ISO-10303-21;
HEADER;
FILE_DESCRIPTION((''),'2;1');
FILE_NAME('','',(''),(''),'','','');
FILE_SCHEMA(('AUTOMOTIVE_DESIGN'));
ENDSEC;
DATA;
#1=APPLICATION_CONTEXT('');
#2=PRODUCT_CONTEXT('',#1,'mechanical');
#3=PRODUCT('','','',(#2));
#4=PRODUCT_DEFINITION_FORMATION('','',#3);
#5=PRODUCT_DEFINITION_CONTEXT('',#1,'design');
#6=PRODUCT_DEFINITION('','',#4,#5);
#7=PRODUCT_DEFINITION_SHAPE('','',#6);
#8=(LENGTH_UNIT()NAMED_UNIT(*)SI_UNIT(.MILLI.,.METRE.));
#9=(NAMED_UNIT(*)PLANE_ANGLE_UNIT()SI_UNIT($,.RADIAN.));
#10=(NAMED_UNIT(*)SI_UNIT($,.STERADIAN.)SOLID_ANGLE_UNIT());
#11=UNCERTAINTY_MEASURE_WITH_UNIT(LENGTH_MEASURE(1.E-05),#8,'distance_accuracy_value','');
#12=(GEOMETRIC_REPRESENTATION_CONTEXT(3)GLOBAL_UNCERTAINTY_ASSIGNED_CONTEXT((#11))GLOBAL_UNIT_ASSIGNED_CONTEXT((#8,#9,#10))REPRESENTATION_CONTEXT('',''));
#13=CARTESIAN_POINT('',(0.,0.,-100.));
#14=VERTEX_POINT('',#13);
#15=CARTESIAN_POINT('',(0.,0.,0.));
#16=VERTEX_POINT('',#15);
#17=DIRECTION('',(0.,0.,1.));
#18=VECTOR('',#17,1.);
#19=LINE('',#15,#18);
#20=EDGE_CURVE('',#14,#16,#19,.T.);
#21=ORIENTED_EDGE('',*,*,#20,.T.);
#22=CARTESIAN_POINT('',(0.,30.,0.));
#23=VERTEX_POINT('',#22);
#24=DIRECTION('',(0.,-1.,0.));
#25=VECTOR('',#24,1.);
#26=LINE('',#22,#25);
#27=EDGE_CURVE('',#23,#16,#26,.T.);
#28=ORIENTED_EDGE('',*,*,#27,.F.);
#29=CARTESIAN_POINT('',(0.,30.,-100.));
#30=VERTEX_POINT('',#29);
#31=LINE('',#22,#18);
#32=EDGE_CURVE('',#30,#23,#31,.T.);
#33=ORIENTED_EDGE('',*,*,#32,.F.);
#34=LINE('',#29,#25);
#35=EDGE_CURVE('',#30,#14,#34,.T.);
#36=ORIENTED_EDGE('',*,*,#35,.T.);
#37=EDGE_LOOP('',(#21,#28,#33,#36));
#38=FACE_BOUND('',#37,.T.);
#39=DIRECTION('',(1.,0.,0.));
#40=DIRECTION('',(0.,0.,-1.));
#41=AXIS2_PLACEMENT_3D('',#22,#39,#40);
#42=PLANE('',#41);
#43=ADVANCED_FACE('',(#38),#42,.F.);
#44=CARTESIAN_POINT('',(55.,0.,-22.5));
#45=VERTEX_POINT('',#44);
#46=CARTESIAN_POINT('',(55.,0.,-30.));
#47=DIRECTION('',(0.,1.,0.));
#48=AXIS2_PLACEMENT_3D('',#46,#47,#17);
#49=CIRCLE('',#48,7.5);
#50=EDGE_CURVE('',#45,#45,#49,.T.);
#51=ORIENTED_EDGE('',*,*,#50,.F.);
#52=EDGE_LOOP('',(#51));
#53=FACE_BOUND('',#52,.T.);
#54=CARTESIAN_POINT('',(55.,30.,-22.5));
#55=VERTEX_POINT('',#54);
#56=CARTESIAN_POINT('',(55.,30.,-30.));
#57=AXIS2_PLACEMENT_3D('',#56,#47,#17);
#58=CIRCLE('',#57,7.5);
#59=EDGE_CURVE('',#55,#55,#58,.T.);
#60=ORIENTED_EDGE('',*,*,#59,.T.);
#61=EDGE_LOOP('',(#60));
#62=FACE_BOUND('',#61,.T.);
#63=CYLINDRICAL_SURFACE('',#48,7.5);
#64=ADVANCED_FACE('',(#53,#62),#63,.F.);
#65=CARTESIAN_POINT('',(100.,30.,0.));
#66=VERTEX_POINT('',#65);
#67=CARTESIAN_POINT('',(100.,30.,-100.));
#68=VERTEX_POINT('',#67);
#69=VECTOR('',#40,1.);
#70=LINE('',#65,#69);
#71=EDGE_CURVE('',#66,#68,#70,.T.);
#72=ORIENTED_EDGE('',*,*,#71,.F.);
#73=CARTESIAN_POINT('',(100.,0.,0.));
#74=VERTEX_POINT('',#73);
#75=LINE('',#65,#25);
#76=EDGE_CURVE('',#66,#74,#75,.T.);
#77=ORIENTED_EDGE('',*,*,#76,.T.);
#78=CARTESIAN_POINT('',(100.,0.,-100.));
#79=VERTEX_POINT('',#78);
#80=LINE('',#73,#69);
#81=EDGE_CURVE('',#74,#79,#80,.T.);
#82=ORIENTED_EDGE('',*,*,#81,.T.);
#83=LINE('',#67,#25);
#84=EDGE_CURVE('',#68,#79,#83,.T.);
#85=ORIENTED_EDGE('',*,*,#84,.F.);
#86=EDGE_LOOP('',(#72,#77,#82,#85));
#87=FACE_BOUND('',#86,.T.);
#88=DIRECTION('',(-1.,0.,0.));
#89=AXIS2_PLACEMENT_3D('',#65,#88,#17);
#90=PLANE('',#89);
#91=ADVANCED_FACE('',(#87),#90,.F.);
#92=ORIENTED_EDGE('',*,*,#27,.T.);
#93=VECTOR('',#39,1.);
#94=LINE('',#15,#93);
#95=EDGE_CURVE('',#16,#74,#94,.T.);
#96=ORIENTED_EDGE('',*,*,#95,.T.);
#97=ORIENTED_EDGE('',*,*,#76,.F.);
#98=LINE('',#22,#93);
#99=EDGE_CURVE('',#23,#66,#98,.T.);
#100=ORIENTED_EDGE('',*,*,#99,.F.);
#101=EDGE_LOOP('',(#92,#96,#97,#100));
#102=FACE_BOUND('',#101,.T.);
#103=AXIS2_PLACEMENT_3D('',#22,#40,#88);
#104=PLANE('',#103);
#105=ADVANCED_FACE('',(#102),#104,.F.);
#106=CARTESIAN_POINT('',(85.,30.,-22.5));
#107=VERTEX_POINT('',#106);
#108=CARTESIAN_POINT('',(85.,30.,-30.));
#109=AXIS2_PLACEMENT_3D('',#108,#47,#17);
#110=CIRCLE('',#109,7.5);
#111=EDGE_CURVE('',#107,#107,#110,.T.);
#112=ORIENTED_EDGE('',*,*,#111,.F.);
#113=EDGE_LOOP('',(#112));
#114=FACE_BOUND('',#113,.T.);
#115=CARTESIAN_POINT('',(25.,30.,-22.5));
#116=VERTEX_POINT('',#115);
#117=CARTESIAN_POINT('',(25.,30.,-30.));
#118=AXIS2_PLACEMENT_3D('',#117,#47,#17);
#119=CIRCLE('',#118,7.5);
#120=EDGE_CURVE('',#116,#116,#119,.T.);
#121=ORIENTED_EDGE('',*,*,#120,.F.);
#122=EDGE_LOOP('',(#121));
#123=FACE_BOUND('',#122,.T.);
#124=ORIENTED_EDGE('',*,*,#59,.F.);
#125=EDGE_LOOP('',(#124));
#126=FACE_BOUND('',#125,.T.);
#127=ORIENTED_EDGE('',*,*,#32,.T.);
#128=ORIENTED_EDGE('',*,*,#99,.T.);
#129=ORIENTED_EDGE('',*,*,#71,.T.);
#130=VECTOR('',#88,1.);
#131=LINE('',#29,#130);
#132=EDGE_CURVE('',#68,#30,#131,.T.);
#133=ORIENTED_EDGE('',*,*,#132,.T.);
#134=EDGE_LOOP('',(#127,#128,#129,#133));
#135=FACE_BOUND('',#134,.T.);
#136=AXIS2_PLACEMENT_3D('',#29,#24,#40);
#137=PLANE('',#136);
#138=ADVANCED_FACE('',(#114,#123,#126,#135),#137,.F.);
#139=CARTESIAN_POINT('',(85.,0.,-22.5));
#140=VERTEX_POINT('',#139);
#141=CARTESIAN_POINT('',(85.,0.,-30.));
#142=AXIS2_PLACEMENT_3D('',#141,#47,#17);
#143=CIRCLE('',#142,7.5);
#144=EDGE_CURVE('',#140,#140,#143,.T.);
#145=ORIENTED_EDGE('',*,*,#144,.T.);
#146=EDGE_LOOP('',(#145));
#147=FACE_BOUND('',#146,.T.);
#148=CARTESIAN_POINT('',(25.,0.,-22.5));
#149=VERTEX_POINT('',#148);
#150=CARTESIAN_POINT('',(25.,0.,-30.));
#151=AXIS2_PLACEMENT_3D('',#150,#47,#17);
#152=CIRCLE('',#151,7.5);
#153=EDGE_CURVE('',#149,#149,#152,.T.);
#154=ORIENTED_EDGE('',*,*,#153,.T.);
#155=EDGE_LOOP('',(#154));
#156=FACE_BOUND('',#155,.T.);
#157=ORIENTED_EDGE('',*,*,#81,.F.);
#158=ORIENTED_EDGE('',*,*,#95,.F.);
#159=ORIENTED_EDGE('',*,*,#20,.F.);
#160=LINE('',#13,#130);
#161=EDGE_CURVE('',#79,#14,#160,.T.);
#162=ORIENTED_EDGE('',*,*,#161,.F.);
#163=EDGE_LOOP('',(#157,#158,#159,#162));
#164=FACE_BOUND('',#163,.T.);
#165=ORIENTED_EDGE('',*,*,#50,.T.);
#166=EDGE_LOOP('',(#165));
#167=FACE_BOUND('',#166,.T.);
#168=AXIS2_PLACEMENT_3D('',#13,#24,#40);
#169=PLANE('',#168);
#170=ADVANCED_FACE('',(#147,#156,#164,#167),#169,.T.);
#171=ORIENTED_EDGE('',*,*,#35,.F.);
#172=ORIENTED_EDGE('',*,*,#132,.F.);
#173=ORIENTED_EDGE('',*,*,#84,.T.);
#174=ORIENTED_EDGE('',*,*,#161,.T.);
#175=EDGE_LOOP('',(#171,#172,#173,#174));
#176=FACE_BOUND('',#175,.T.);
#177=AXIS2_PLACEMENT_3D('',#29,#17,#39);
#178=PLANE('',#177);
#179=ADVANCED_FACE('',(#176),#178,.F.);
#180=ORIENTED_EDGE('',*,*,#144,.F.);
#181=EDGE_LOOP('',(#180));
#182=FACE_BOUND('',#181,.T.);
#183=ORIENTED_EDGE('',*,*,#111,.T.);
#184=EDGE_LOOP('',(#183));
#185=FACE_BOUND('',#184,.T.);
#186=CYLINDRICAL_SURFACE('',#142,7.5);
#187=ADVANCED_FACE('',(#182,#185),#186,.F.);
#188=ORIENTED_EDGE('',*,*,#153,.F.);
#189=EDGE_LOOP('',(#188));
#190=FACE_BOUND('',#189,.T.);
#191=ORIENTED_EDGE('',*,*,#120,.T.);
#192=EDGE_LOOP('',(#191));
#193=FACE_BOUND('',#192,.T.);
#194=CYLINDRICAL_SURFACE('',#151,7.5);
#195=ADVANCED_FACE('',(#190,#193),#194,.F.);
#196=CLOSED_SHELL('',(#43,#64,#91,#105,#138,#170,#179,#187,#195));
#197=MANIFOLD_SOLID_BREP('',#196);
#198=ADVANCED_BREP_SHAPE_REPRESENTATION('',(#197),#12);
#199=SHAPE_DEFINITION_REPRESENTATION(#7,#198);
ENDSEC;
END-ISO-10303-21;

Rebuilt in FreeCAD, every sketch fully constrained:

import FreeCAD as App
import Part
import Sketcher
from FreeCAD import Vector
Q = App.Units.Quantity

doc = App.newDocument("Part")
body = doc.addObject("PartDesign::Body", "Body")

# Sketch on XZ plane
sketch1 = doc.addObject("Sketcher::SketchObject", "Sketch")
body.addObject(sketch1)
sketch1.AttachmentSupport = (doc.XZ_Plane, [""])
sketch1.MapMode = "FlatFace"
sketch1.addGeometry(Part.LineSegment(Vector(0, -100, 0), Vector(0, 0, 0)), False)
sketch1.addGeometry(Part.LineSegment(Vector(0, 0, 0), Vector(100, 0, 0)), False)
sketch1.addGeometry(Part.LineSegment(Vector(100, 0, 0), Vector(100, -100, 0)), False)
sketch1.addGeometry(Part.LineSegment(Vector(100, -100, 0), Vector(0, -100, 0)), False)
sketch1.addConstraint(Sketcher.Constraint("Coincident", 0, 2, 1, 1))
sketch1.addConstraint(Sketcher.Constraint("Coincident", 1, 2, 2, 1))
sketch1.addConstraint(Sketcher.Constraint("Coincident", 2, 2, 3, 1))
sketch1.addConstraint(Sketcher.Constraint("Coincident", 3, 2, 0, 1))
sketch1.addConstraint(Sketcher.Constraint("Vertical", 0))
sketch1.addConstraint(Sketcher.Constraint("Horizontal", 1))
sketch1.addConstraint(Sketcher.Constraint("Vertical", 2))
sketch1.addConstraint(Sketcher.Constraint("Horizontal", 3))
sketch1.addConstraint(Sketcher.Constraint("Coincident", 0, 2, -1, 1))
sketch1.addConstraint(Sketcher.Constraint("Equal", 3, 0))
sketch1.addConstraint(Sketcher.Constraint("DistanceX", 1, 1, 1, 2, Q("100 mm")))
pad1 = doc.addObject("PartDesign::Pad", "Pad")
body.addObject(pad1)
pad1.Profile = sketch1
pad1.Length = 30
pad1.Reversed = True

# Sketch on XZ plane
sketch2 = doc.addObject("Sketcher::SketchObject", "Sketch001")
body.addObject(sketch2)
sketch2.AttachmentSupport = (doc.XZ_Plane, [""])
sketch2.MapMode = "FlatFace"
sketch2.AttachmentOffset = App.Placement(Vector(0, 0, -30), App.Rotation())
sketch2.addGeometry(Part.Circle(Vector(55, -30, 0), Vector(0, 0, 1), 8), False)
sketch2.addGeometry(Part.Circle(Vector(25, -30, 0), Vector(0, 0, 1), 8), False)
sketch2.addGeometry(Part.Circle(Vector(85, -30, 0), Vector(0, 0, 1), 8), False)
sketch2.addConstraint(Sketcher.Constraint("Equal", 0, 1))
sketch2.addConstraint(Sketcher.Constraint("Equal", 1, 2))
sketch2.addConstraint(Sketcher.Constraint("Horizontal", 0, 3, 1, 3))
sketch2.addConstraint(Sketcher.Constraint("Horizontal", 1, 3, 2, 3))
sketch2.addConstraint(Sketcher.Constraint("Diameter", 0, Q("15 mm")))
sketch2.addConstraint(Sketcher.Constraint("DistanceX", -1, 1, 0, 3, Q("55 mm")))
sketch2.addConstraint(Sketcher.Constraint("DistanceY", 0, 3, -1, 1, Q("30 mm")))
sketch2.addConstraint(Sketcher.Constraint("DistanceX", -1, 1, 1, 3, Q("25 mm")))
sketch2.addConstraint(Sketcher.Constraint("DistanceX", -1, 1, 2, 3, Q("85 mm")))
pocket1 = doc.addObject("PartDesign::Pocket", "Pocket")
body.addObject(pocket1)
pocket1.Profile = sketch2
pocket1.Length = 30
pocket1.Reversed = True

doc.recompute()
